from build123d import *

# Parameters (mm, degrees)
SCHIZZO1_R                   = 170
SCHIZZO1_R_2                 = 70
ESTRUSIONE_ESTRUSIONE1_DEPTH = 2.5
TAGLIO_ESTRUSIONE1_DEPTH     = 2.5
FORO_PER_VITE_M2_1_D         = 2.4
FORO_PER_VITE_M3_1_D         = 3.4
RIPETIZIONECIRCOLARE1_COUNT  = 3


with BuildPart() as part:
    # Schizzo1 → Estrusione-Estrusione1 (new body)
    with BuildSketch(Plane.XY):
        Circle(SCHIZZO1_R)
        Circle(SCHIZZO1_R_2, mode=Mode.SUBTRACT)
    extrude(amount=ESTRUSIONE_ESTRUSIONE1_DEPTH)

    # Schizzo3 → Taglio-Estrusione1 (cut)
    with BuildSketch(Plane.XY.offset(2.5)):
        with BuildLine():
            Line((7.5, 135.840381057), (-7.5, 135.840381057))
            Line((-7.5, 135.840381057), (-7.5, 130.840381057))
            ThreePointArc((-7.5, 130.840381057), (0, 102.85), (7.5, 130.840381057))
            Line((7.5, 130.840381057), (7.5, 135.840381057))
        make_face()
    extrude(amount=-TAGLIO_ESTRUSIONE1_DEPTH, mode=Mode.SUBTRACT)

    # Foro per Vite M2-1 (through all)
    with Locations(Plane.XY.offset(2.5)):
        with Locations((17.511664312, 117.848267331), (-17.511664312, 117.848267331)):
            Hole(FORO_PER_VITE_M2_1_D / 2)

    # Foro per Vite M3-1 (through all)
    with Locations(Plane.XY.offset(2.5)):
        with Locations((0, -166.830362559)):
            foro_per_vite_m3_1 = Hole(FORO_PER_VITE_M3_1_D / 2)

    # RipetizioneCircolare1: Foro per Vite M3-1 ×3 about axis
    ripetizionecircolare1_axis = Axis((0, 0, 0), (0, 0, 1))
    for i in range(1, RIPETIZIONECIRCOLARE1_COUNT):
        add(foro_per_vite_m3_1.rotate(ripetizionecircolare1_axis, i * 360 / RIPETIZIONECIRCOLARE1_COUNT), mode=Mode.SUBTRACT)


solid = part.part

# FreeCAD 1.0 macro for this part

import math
import FreeCAD as App
import Part
import Sketcher
from FreeCAD import Vector

doc = App.newDocument("Part")
body = doc.addObject("PartDesign::Body", "Body")

# Sketch on XY plane
sketch1 = body.newObject("Sketcher::SketchObject", "Sketch")
sketch1.AttachmentSupport = (doc.getObject("XY_Plane"), [""])
sketch1.MapMode = "FlatFace"
sketch1.addGeometry(Part.Circle(Vector(0, 0, 0), Vector(0, 0, 1), 170), False)
sketch1.addGeometry(Part.Circle(Vector(0, 0, 0), Vector(0, 0, 1), 70), False)
sketch1.addConstraint(Sketcher.Constraint("Coincident", 0, 3, -1, 1))
sketch1.addConstraint(Sketcher.Constraint("Coincident", 1, 3, -1, 1))
sketch1.addConstraint(Sketcher.Constraint("Diameter", 0, 340.0))
sketch1.addConstraint(Sketcher.Constraint("Diameter", 1, 140.0))
pad1 = body.newObject("PartDesign::Pad", "Pad")
pad1.Profile = sketch1
pad1.Length = 2.5

# Sketch on XY plane
sketch2 = body.newObject("Sketcher::SketchObject", "Sketch001")
sketch2.AttachmentSupport = (doc.getObject("XY_Plane"), [""])
sketch2.MapMode = "FlatFace"
sketch2.AttachmentOffset = App.Placement(Vector(0, 0, 2.5), App.Rotation())
sketch2.addGeometry(Part.LineSegment(Vector(8, 136, 0), Vector(-8, 136, 0)), False)
sketch2.addGeometry(Part.LineSegment(Vector(-8, 136, 0), Vector(-8, 131, 0)), False)
sketch2.addGeometry(Part.ArcOfCircle(Part.Circle(Vector(0, 118, 0), Vector(0, 0, 1), 15), math.radians(120), math.radians(420)), False)
sketch2.addGeometry(Part.LineSegment(Vector(8, 131, 0), Vector(8, 136, 0)), False)
sketch2.addConstraint(Sketcher.Constraint("Coincident", 0, 2, 1, 1))
sketch2.addConstraint(Sketcher.Constraint("Coincident", 1, 2, 2, 1))
sketch2.addConstraint(Sketcher.Constraint("Coincident", 2, 2, 3, 1))
sketch2.addConstraint(Sketcher.Constraint("Coincident", 3, 2, 0, 1))
sketch2.addConstraint(Sketcher.Constraint("Horizontal", 0))
sketch2.addConstraint(Sketcher.Constraint("Vertical", 1))
sketch2.addConstraint(Sketcher.Constraint("Vertical", 3))
sketch2.addConstraint(Sketcher.Constraint("Symmetric", 1, 2, 2, 2, -2))
sketch2.addConstraint(Sketcher.Constraint("Radius", 2, 15.0))
sketch2.addConstraint(Sketcher.Constraint("DistanceX", 0, 2, 0, 1, 15.0))
sketch2.addConstraint(Sketcher.Constraint("DistanceY", 1, 2, 1, 1, 5.0))
sketch2.addConstraint(Sketcher.Constraint("DistanceY", -1, 1, 2, 3, 117.85))
pocket1 = body.newObject("PartDesign::Pocket", "Pocket")
pocket1.Profile = sketch2
pocket1.Length = 2.5

# Sketch on XY plane
sketch3 = body.newObject("Sketcher::SketchObject", "Sketch002")
sketch3.AttachmentSupport = (doc.getObject("XY_Plane"), [""])
sketch3.MapMode = "FlatFace"
sketch3.AttachmentOffset = App.Placement(Vector(0, 0, 2.5), App.Rotation())
sketch3.addGeometry(Part.Circle(Vector(17.5, 117.8, 0), Vector(0, 0, 1), 1.2), False)
sketch3.addGeometry(Part.Circle(Vector(-17.5, 117.8, 0), Vector(0, 0, 1), 1.2), False)
sketch3.addConstraint(Sketcher.Constraint("Equal", 0, 1))
sketch3.addConstraint(Sketcher.Constraint("Symmetric", 0, 3, 1, 3, -2))
sketch3.addConstraint(Sketcher.Constraint("Diameter", 0, 2.4))
sketch3.addConstraint(Sketcher.Constraint("DistanceX", 1, 3, 0, 3, 35.023329))
sketch3.addConstraint(Sketcher.Constraint("DistanceY", -1, 1, 0, 3, 117.848267))
doc.recompute()
hole = body.newObject("PartDesign::Hole", "Hole")
hole.Profile = sketch3
hole.ThreadType = "None"
hole.Diameter = 2.4
hole.DepthType = "ThroughAll"

# Sketch on XY plane
sketch4 = body.newObject("Sketcher::SketchObject", "Sketch003")
sketch4.AttachmentSupport = (doc.getObject("XY_Plane"), [""])
sketch4.MapMode = "FlatFace"
sketch4.AttachmentOffset = App.Placement(Vector(0, 0, 2.5), App.Rotation())
sketch4.addGeometry(Part.Circle(Vector(0, -166.8, 0), Vector(0, 0, 1), 1.7), False)
sketch4.addConstraint(Sketcher.Constraint("PointOnObject", 0, 3, -2))
sketch4.addConstraint(Sketcher.Constraint("Diameter", 0, 3.4))
sketch4.addConstraint(Sketcher.Constraint("DistanceY", 0, 3, -1, 1, 166.830363))
doc.recompute()
hole2 = body.newObject("PartDesign::Hole", "Hole001")
hole2.Profile = sketch4
hole2.ThreadType = "None"
hole2.Diameter = 3.4
hole2.DepthType = "ThroughAll"
doc.recompute()

polarpattern = body.newObject("PartDesign::PolarPattern", "PolarPattern")
polarpattern.Originals = [hole2]
polarpattern.Axis = (doc.getObject("Z_Axis"), [""])
polarpattern.Angle = 360
polarpattern.Occurrences = 3
body.Tip = polarpattern

doc.recompute()
